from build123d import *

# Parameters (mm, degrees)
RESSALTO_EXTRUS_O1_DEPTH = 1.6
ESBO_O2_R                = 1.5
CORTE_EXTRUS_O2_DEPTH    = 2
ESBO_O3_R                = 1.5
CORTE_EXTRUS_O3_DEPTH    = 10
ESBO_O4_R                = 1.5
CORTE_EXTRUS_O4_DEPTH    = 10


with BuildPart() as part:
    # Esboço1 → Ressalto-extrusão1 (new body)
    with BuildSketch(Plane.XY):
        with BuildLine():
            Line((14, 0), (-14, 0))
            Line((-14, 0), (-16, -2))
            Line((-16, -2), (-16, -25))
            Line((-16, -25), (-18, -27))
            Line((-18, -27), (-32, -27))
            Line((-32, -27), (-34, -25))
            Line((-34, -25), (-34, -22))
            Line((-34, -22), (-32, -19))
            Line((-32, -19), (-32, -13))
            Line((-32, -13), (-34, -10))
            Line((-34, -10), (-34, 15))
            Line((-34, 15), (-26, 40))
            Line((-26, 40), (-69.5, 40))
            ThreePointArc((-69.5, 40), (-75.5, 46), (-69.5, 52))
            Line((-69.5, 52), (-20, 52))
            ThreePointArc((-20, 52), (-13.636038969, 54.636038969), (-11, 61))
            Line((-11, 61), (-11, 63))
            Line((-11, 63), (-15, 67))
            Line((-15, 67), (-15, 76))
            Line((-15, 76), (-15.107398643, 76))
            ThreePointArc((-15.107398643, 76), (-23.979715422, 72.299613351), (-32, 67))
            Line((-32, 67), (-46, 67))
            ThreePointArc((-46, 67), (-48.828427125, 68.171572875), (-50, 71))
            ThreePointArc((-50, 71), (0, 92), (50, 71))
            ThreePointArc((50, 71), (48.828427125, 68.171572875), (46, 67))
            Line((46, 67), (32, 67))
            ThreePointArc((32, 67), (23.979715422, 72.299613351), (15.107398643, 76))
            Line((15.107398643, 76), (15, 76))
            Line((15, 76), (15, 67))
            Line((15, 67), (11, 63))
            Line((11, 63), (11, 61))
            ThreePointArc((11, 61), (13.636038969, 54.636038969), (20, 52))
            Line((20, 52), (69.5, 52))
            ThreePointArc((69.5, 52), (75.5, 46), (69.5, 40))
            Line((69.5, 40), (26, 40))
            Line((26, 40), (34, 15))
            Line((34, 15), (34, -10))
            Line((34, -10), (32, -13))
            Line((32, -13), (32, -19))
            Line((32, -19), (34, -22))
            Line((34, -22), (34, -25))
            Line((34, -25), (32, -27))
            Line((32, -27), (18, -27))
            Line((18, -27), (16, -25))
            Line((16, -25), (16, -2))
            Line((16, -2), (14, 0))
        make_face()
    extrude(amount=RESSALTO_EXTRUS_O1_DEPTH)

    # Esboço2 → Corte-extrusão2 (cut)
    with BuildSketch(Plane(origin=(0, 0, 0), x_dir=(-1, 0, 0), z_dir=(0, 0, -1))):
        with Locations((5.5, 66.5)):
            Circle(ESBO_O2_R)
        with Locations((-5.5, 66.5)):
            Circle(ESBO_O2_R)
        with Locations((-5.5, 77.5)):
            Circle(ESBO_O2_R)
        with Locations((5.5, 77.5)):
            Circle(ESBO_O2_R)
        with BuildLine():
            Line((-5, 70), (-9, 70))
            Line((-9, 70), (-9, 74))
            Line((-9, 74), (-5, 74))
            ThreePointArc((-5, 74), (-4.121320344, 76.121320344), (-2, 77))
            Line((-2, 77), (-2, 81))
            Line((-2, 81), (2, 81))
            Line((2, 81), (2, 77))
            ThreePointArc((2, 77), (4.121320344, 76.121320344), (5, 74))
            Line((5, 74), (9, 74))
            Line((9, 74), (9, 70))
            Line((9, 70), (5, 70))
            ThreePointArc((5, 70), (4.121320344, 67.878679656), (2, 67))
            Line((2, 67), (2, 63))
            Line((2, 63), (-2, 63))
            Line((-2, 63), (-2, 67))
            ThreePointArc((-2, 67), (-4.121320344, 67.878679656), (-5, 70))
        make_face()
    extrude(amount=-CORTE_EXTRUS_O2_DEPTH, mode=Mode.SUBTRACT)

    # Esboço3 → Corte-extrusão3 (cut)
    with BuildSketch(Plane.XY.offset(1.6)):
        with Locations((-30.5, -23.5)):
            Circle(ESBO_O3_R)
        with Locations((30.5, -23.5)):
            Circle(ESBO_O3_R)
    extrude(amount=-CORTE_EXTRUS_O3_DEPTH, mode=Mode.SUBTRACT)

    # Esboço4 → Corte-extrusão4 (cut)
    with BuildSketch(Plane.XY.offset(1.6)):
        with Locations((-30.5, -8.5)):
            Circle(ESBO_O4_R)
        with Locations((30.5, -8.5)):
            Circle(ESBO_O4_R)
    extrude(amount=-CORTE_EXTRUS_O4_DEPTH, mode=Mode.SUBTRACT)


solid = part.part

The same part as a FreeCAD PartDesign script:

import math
import FreeCAD as App
import Part
import Sketcher
from FreeCAD import Vector

doc = App.newDocument("Part")
body = doc.addObject("PartDesign::Body", "Body")

# Sketch on XY plane
sketch1 = doc.addObject("Sketcher::SketchObject", "Sketch")
body.addObject(sketch1)
sketch1.AttachmentSupport = (doc.XY_Plane, [""])
sketch1.MapMode = "FlatFace"
sketch1.addGeometry([
    Part.LineSegment(Vector(-14, 0, 0), Vector(14, 0, 0)),  # 0
    Part.LineSegment(Vector(14, 0, 0), Vector(16, -2, 0)),  # 1
    Part.LineSegment(Vector(16, -2, 0), Vector(16, -25, 0)),  # 2
    Part.LineSegment(Vector(16, -25, 0), Vector(18, -27, 0)),  # 3
    Part.LineSegment(Vector(18, -27, 0), Vector(32, -27, 0)),  # 4
    Part.LineSegment(Vector(32, -27, 0), Vector(34, -25, 0)),  # 5
    Part.LineSegment(Vector(34, -25, 0), Vector(34, -22, 0)),  # 6
    Part.LineSegment(Vector(34, -22, 0), Vector(32, -19, 0)),  # 7
    Part.LineSegment(Vector(32, -19, 0), Vector(32, -13, 0)),  # 8
    Part.LineSegment(Vector(32, -13, 0), Vector(34, -10, 0)),  # 9
    Part.LineSegment(Vector(34, -10, 0), Vector(34, 15, 0)),  # 10
    Part.LineSegment(Vector(34, 15, 0), Vector(26, 40, 0)),  # 11
    Part.LineSegment(Vector(26, 40, 0), Vector(69.5, 40, 0)),  # 12
    Part.ArcOfCircle(Part.Circle(Vector(69.5, 46, 0), Vector(0, 0, 1), 6), math.radians(-90), math.radians(90)),  # 13
    Part.LineSegment(Vector(69.5, 52, 0), Vector(20, 52, 0)),  # 14
    Part.ArcOfCircle(Part.Circle(Vector(20, 61, 0), Vector(0, 0, 1), 9), math.radians(180), math.radians(270)),  # 15
    Part.LineSegment(Vector(11, 61, 0), Vector(11, 63, 0)),  # 16
    Part.LineSegment(Vector(11, 63, 0), Vector(15, 67, 0)),  # 17
    Part.LineSegment(Vector(15, 67, 0), Vector(15, 76, 0)),  # 18
    Part.LineSegment(Vector(15, 76, 0), Vector(15.11, 76, 0)),  # 19
    Part.ArcOfCircle(Part.Circle(Vector(0, 27.29, 0), Vector(0, 0, 1), 51), math.radians(51), math.radians(73)),  # 20
    Part.LineSegment(Vector(32, 67, 0), Vector(46, 67, 0)),  # 21
    Part.ArcOfCircle(Part.Circle(Vector(46, 71, 0), Vector(0, 0, 1), 4), math.radians(-90), math.radians(0)),  # 22
    Part.ArcOfCircle(Part.Circle(Vector(0, 21.98, 0), Vector(0, 0, 1), 70.02), math.radians(44), math.radians(136)),  # 23
    Part.ArcOfCircle(Part.Circle(Vector(-46, 71, 0), Vector(0, 0, 1), 4), math.radians(180), math.radians(270)),  # 24
    Part.LineSegment(Vector(-46, 67, 0), Vector(-32, 67, 0)),  # 25
    Part.ArcOfCircle(Part.Circle(Vector(0, 27.29, 0), Vector(0, 0, 1), 51), math.radians(107), math.radians(129)),  # 26
    Part.LineSegment(Vector(-15.11, 76, 0), Vector(-15, 76, 0)),  # 27
    Part.LineSegment(Vector(-15, 76, 0), Vector(-15, 67, 0)),  # 28
    Part.LineSegment(Vector(-15, 67, 0), Vector(-11, 63, 0)),  # 29
    Part.LineSegment(Vector(-11, 63, 0), Vector(-11, 61, 0)),  # 30
    Part.ArcOfCircle(Part.Circle(Vector(-20, 61, 0), Vector(0, 0, 1), 9), math.radians(-90), math.radians(0)),  # 31
    Part.LineSegment(Vector(-20, 52, 0), Vector(-69.5, 52, 0)),  # 32
    Part.ArcOfCircle(Part.Circle(Vector(-69.5, 46, 0), Vector(0, 0, 1), 6), math.radians(90), math.radians(270)),  # 33
    Part.LineSegment(Vector(-69.5, 40, 0), Vector(-26, 40, 0)),  # 34
    Part.LineSegment(Vector(-26, 40, 0), Vector(-34, 15, 0)),  # 35
    Part.LineSegment(Vector(-34, 15, 0), Vector(-34, -10, 0)),  # 36
    Part.LineSegment(Vector(-34, -10, 0), Vector(-32, -13, 0)),  # 37
    Part.LineSegment(Vector(-32, -13, 0), Vector(-32, -19, 0)),  # 38
    Part.LineSegment(Vector(-32, -19, 0), Vector(-34, -22, 0)),  # 39
    Part.LineSegment(Vector(-34, -22, 0), Vector(-34, -25, 0)),  # 40
    Part.LineSegment(Vector(-34, -25, 0), Vector(-32, -27, 0)),  # 41
    Part.LineSegment(Vector(-32, -27, 0), Vector(-18, -27, 0)),  # 42
    Part.LineSegment(Vector(-18, -27, 0), Vector(-16, -25, 0)),  # 43
    Part.LineSegment(Vector(-16, -25, 0), Vector(-16, -2, 0)),  # 44
    Part.LineSegment(Vector(-16, -2, 0), Vector(-14, 0, 0)),  # 45
], False)
sketch1.addConstraint([
    Sketcher.Constraint("Coincident", 0, 2, 1, 1),
    Sketcher.Constraint("Coincident", 1, 2, 2, 1),
    Sketcher.Constraint("Coincident", 2, 2, 3, 1),
    Sketcher.Constraint("Coincident", 3, 2, 4, 1),
    Sketcher.Constraint("Coincident", 4, 2, 5, 1),
    Sketcher.Constraint("Coincident", 5, 2, 6, 1),
    Sketcher.Constraint("Coincident", 6, 2, 7, 1),
    Sketcher.Constraint("Coincident", 7, 2, 8, 1),
    Sketcher.Constraint("Coincident", 8, 2, 9, 1),
    Sketcher.Constraint("Coincident", 9, 2, 10, 1),
    Sketcher.Constraint("Coincident", 10, 2, 11, 1),
    Sketcher.Constraint("Coincident", 11, 2, 12, 1),
    Sketcher.Constraint("Tangent", 12, 2, 13, 1),
    Sketcher.Constraint("Tangent", 13, 2, 14, 1),
    Sketcher.Constraint("Tangent", 14, 2, 15, 2),
    Sketcher.Constraint("Tangent", 15, 1, 16, 1),
    Sketcher.Constraint("Coincident", 16, 2, 17, 1),
    Sketcher.Constraint("Coincident", 17, 2, 18, 1),
    Sketcher.Constraint("Coincident", 18, 2, 19, 1),
    Sketcher.Constraint("Coincident", 19, 2, 20, 2),
    Sketcher.Constraint("Coincident", 20, 1, 21, 1),
    Sketcher.Constraint("Tangent", 21, 2, 22, 1),
    Sketcher.Constraint("Coincident", 22, 2, 23, 1),
    Sketcher.Constraint("Coincident", 23, 2, 24, 1),
    Sketcher.Constraint("Tangent", 24, 2, 25, 1),
    Sketcher.Constraint("Coincident", 25, 2, 26, 2),
    Sketcher.Constraint("Coincident", 26, 1, 27, 1),
    Sketcher.Constraint("Coincident", 27, 2, 28, 1),
    Sketcher.Constraint("Coincident", 28, 2, 29, 1),
    Sketcher.Constraint("Coincident", 29, 2, 30, 1),
    Sketcher.Constraint("Tangent", 30, 2, 31, 2),
    Sketcher.Constraint("Tangent", 31, 1, 32, 1),
    Sketcher.Constraint("Tangent", 32, 2, 33, 1),
    Sketcher.Constraint("Tangent", 33, 2, 34, 1),
    Sketcher.Constraint("Coincident", 34, 2, 35, 1),
    Sketcher.Constraint("Coincident", 35, 2, 36, 1),
    Sketcher.Constraint("Coincident", 36, 2, 37, 1),
    Sketcher.Constraint("Coincident", 37, 2, 38, 1),
    Sketcher.Constraint("Coincident", 38, 2, 39, 1),
    Sketcher.Constraint("Coincident", 39, 2, 40, 1),
    Sketcher.Constraint("Coincident", 40, 2, 41, 1),
    Sketcher.Constraint("Coincident", 41, 2, 42, 1),
    Sketcher.Constraint("Coincident", 42, 2, 43, 1),
    Sketcher.Constraint("Coincident", 43, 2, 44, 1),
    Sketcher.Constraint("Coincident", 44, 2, 45, 1),
    Sketcher.Constraint("Coincident", 45, 2, 0, 1),
    Sketcher.Constraint("Horizontal", 0),
    Sketcher.Constraint("Vertical", 2),
    Sketcher.Constraint("Horizontal", 4),
    Sketcher.Constraint("Vertical", 6),
    Sketcher.Constraint("Vertical", 8),
    Sketcher.Constraint("Vertical", 10),
    Sketcher.Constraint("Horizontal", 12),
    Sketcher.Constraint("Horizontal", 14),
    Sketcher.Constraint("Vertical", 16),
    Sketcher.Constraint("Vertical", 18),
    Sketcher.Constraint("Horizontal", 19),
    Sketcher.Constraint("Horizontal", 21),
    Sketcher.Constraint("Horizontal", 25),
    Sketcher.Constraint("Horizontal", 27),
    Sketcher.Constraint("Vertical", 28),
    Sketcher.Constraint("Vertical", 30),
    Sketcher.Constraint("Horizontal", 32),
    Sketcher.Constraint("Horizontal", 34),
    Sketcher.Constraint("Vertical", 36),
    Sketcher.Constraint("Vertical", 38),
    Sketcher.Constraint("Vertical", 40),
    Sketcher.Constraint("Horizontal", 42),
    Sketcher.Constraint("Vertical", 44),
    Sketcher.Constraint("Coincident", 26, 3, 20, 3),
    Sketcher.Constraint("Equal", 22, 24),
    Sketcher.Constraint("Equal", 20, 26),
    Sketcher.Constraint("Equal", 15, 31),
    Sketcher.Constraint("Equal", 13, 33),
    Sketcher.Constraint("Symmetric", 0, 2, 45, 2, -1, 1),
    Sketcher.Constraint("Symmetric", 22, 3, 24, 3, -2),
    Sketcher.Constraint("Symmetric", 15, 3, 31, 3, -2),
    Sketcher.Constraint("Symmetric", 19, 2, 26, 1, -2),
    Sketcher.Constraint("Symmetric", 17, 2, 28, 2, -2),
    Sketcher.Constraint("Symmetric", 10, 2, 35, 2, -2),
    Sketcher.Constraint("Symmetric", 8, 2, 37, 2, -2),
    Sketcher.Constraint("Symmetric", 6, 2, 39, 2, -2),
    Sketcher.Constraint("Symmetric", 4, 2, 41, 2, -2),
    Sketcher.Constraint("Symmetric", 2, 2, 43, 2, -2),
    Sketcher.Constraint("PointOnObject", 23, 3, -2),
    Sketcher.Constraint("Parallel", 1, 3),
    Sketcher.Constraint("Perpendicular", 3, 5),
    Sketcher.Constraint("Parallel", 5, 17),
    Sketcher.Constraint("Perpendicular", 17, 29),
    Sketcher.Constraint("Parallel", 7, 37),
    Sketcher.Constraint("Parallel", 9, 39),
    Sketcher.Constraint("Parallel", 29, 41),
    Sketcher.Constraint("Perpendicular", 41, 43),
    Sketcher.Constraint("Parallel", 43, 45),
    Sketcher.Constraint("Horizontal", 2, 2, 5, 2),
    Sketcher.Constraint("Horizontal", 17, 2, 20, 1),
    Sketcher.Constraint("Horizontal", 24, 3, 22, 2),
    Sketcher.Constraint("Horizontal", 16, 2, 29, 2),
    Sketcher.Constraint("Horizontal", 9, 2, 36, 2),
    Sketcher.Constraint("Vertical", 4, 2, 7, 2),
    Sketcher.Constraint("Vertical", 6, 2, 9, 2),
    Sketcher.Constraint("Vertical", 8, 2, 20, 1),
    Sketcher.Constraint("Equal", 4, 21),
    Sketcher.Constraint("Equal", 14, 32),
    Sketcher.Constraint("Equal", 12, 34),
    Sketcher.Constraint("Equal", 1, 3),
    Sketcher.Constraint("Radius", 13, 6.0),
    Sketcher.Constraint("Radius", 15, 9.0),
    Sketcher.Constraint("Radius", 22, 4.0),
    Sketcher.Constraint("DistanceX", 0, 1, 0, 2, 28.0),
    Sketcher.Constraint("DistanceX", 4, 1, 4, 2, 14.0),
    Sketcher.Constraint("DistanceY", 2, 2, 2, 1, 23.0),
    Sketcher.Constraint("DistanceY", 6, 1, 6, 2, 3.0),
    Sketcher.Constraint("DistanceY", 8, 1, 8, 2, 6.0),
    Sketcher.Constraint("DistanceY", 10, 1, 10, 2, 25.0),
    Sketcher.Constraint("DistanceY", 16, 1, 16, 2, 2.0),
    Sketcher.Constraint("DistanceY", 18, 1, 18, 2, 9.0),
    Sketcher.Constraint("DistanceX", 12, 1, 12, 2, 43.5),
    Sketcher.Constraint("DistanceX", 14, 2, 14, 1, 49.5),
    Sketcher.Constraint("DistanceY", -1, 1, 13, 3, 46.0),
    Sketcher.Constraint("DistanceX", -1, 1, 15, 3, 20.0),
    Sketcher.Constraint("DistanceX", -1, 1, 22, 3, 46.0),
    Sketcher.Constraint("DistanceY", -1, 1, 22, 3, 71.0),
    Sketcher.Constraint("DistanceY", 7, 2, -1, 1, 19.0),
    Sketcher.Constraint("Radius", 20, 50.99828),
    Sketcher.Constraint("Radius", 23, 70.02381),
])
pad1 = doc.addObject("PartDesign::Pad", "Pad")
body.addObject(pad1)
pad1.Profile = sketch1
pad1.Length = 1.6

# Sketch on XY plane
sketch2 = doc.addObject("Sketcher::SketchObject", "Sketch001")
body.addObject(sketch2)
sketch2.AttachmentSupport = (doc.XY_Plane, [""])
sketch2.MapMode = "FlatFace"
sketch2.addGeometry([
    Part.Circle(Vector(-5.5, 66.5, 0), Vector(0, 0, 1), 1.5),  # 0
    Part.Circle(Vector(5.5, 66.5, 0), Vector(0, 0, 1), 1.5),  # 1
    Part.Circle(Vector(5.5, 77.5, 0), Vector(0, 0, 1), 1.5),  # 2
    Part.Circle(Vector(-5.5, 77.5, 0), Vector(0, 0, 1), 1.5),  # 3
    Part.LineSegment(Vector(9, 70, 0), Vector(5, 70, 0)),  # 4
    Part.ArcOfCircle(Part.Circle(Vector(2, 70, 0), Vector(0, 0, 1), 3), math.radians(-90), math.radians(0)),  # 5
    Part.LineSegment(Vector(2, 67, 0), Vector(2, 63, 0)),  # 6
    Part.LineSegment(Vector(2, 63, 0), Vector(-2, 63, 0)),  # 7
    Part.LineSegment(Vector(-2, 63, 0), Vector(-2, 67, 0)),  # 8
    Part.ArcOfCircle(Part.Circle(Vector(-2, 70, 0), Vector(0, 0, 1), 3), math.radians(180), math.radians(270)),  # 9
    Part.LineSegment(Vector(-5, 70, 0), Vector(-9, 70, 0)),  # 10
    Part.LineSegment(Vector(-9, 70, 0), Vector(-9, 74, 0)),  # 11
    Part.LineSegment(Vector(-9, 74, 0), Vector(-5, 74, 0)),  # 12
    Part.ArcOfCircle(Part.Circle(Vector(-2, 74, 0), Vector(0, 0, 1), 3), math.radians(90), math.radians(180)),  # 13
    Part.LineSegment(Vector(-2, 77, 0), Vector(-2, 81, 0)),  # 14
    Part.LineSegment(Vector(-2, 81, 0), Vector(2, 81, 0)),  # 15
    Part.LineSegment(Vector(2, 81, 0), Vector(2, 77, 0)),  # 16
    Part.ArcOfCircle(Part.Circle(Vector(2, 74, 0), Vector(0, 0, 1), 3), math.radians(0), math.radians(90)),  # 17
    Part.LineSegment(Vector(5, 74, 0), Vector(9, 74, 0)),  # 18
    Part.LineSegment(Vector(9, 74, 0), Vector(9, 70, 0)),  # 19
], False)
sketch2.addConstraint([
    Sketcher.Constraint("Coincident", 4, 2, 5, 2),
    Sketcher.Constraint("Coincident", 5, 1, 6, 1),
    Sketcher.Constraint("Coincident", 6, 2, 7, 1),
    Sketcher.Constraint("Coincident", 7, 2, 8, 1),
    Sketcher.Constraint("Coincident", 8, 2, 9, 2),
    Sketcher.Constraint("Coincident", 9, 1, 10, 1),
    Sketcher.Constraint("Coincident", 10, 2, 11, 1),
    Sketcher.Constraint("Coincident", 11, 2, 12, 1),
    Sketcher.Constraint("Coincident", 12, 2, 13, 2),
    Sketcher.Constraint("Coincident", 13, 1, 14, 1),
    Sketcher.Constraint("Coincident", 14, 2, 15, 1),
    Sketcher.Constraint("Coincident", 15, 2, 16, 1),
    Sketcher.Constraint("Coincident", 16, 2, 17, 2),
    Sketcher.Constraint("Coincident", 17, 1, 18, 1),
    Sketcher.Constraint("Coincident", 18, 2, 19, 1),
    Sketcher.Constraint("Coincident", 19, 2, 4, 1),
    Sketcher.Constraint("Horizontal", 4),
    Sketcher.Constraint("Vertical", 6),
    Sketcher.Constraint("Horizontal", 7),
    Sketcher.Constraint("Vertical", 8),
    Sketcher.Constraint("Horizontal", 10),
    Sketcher.Constraint("Vertical", 11),
    Sketcher.Constraint("Horizontal", 12),
    Sketcher.Constraint("Vertical", 14),
    Sketcher.Constraint("Horizontal", 15),
    Sketcher.Constraint("Vertical", 16),
    Sketcher.Constraint("Horizontal", 18),
    Sketcher.Constraint("Vertical", 19),
    Sketcher.Constraint("Equal", 0, 1),
    Sketcher.Constraint("Equal", 1, 2),
    Sketcher.Constraint("Equal", 2, 3),
    Sketcher.Constraint("Equal", 5, 9),
    Sketcher.Constraint("Equal", 9, 13),
    Sketcher.Constraint("Equal", 13, 17),
    Sketcher.Constraint("Symmetric", 0, 3, 1, 3, -2),
    Sketcher.Constraint("Symmetric", 2, 3, 3, 3, -2),
    Sketcher.Constraint("Symmetric", 5, 3, 9, 3, -2),
    Sketcher.Constraint("Symmetric", 13, 3, 17, 3, -2),
    Sketcher.Constraint("Symmetric", 11, 2, 18, 2, -2),
    Sketcher.Constraint("Horizontal", 9, 3, 4, 2),
    Sketcher.Constraint("Horizontal", 4, 2, 9, 1),
    Sketcher.Constraint("Horizontal", 17, 3, 11, 2),
    Sketcher.Constraint("Vertical", 1, 3, 2, 3),
    Sketcher.Constraint("Vertical", 9, 3, 13, 3),
    Sketcher.Constraint("Vertical", 17, 3, 5, 1),
    Sketcher.Constraint("Vertical", 13, 3, 7, 2),
    Sketcher.Constraint("Vertical", 8, 2, 13, 1),
    Sketcher.Constraint("Vertical", 6, 2, 15, 2),
    Sketcher.Constraint("Equal", 4, 7),
    Sketcher.Constraint("Equal", 18, 6),
    Sketcher.Constraint("Equal", 8, 11),
    Sketcher.Constraint("Equal", 11, 14),
    Sketcher.Constraint("Diameter", 0, 3.0),
    Sketcher.Constraint("Radius", 5, 3.0),
    Sketcher.Constraint("DistanceX", 4, 2, 4, 1, 4.0),
    Sketcher.Constraint("DistanceY", -1, 1, 5, 3, 70.0),
    Sketcher.Constraint("DistanceX", 0, 3, 1, 3, 11.0),
    Sketcher.Constraint("DistanceY", 1, 3, 2, 3, 11.0),
    Sketcher.Constraint("DistanceY", -1, 1, 0, 3, 66.5),
])
pocket1 = doc.addObject("PartDesign::Pocket", "Pocket")
body.addObject(pocket1)
pocket1.Profile = sketch2
pocket1.Length = 2
pocket1.Reversed = True

# Sketch on XY plane
sketch3 = doc.addObject("Sketcher::SketchObject", "Sketch002")
body.addObject(sketch3)
sketch3.AttachmentSupport = (doc.XY_Plane, [""])
sketch3.MapMode = "FlatFace"
sketch3.AttachmentOffset = App.Placement(Vector(0, 0, 1.6), App.Rotation())
sketch3.addGeometry([
    Part.Circle(Vector(-30.5, -23.5, 0), Vector(0, 0, 1), 1.5),
    Part.Circle(Vector(30.5, -23.5, 0), Vector(0, 0, 1), 1.5),
], False)
sketch3.addConstraint([
    Sketcher.Constraint("Equal", 0, 1),
    Sketcher.Constraint("Symmetric", 0, 3, 1, 3, -2),
    Sketcher.Constraint("Diameter", 0, 3.0),
    Sketcher.Constraint("DistanceX", 0, 3, 1, 3, 61.0),
    Sketcher.Constraint("DistanceY", 0, 3, -1, 1, 23.5),
])
pocket2 = doc.addObject("PartDesign::Pocket", "Pocket001")
body.addObject(pocket2)
pocket2.Profile = sketch3
pocket2.Length = 10

# Sketch on XY plane
sketch4 = doc.addObject("Sketcher::SketchObject", "Sketch003")
body.addObject(sketch4)
sketch4.AttachmentSupport = (doc.XY_Plane, [""])
sketch4.MapMode = "FlatFace"
sketch4.AttachmentOffset = App.Placement(Vector(0, 0, 1.6), App.Rotation())
sketch4.addGeometry([
    Part.Circle(Vector(-30.5, -8.5, 0), Vector(0, 0, 1), 1.5),
    Part.Circle(Vector(30.5, -8.5, 0), Vector(0, 0, 1), 1.5),
], False)
sketch4.addConstraint([
    Sketcher.Constraint("Equal", 0, 1),
    Sketcher.Constraint("Symmetric", 0, 3, 1, 3, -2),
    Sketcher.Constraint("Diameter", 0, 3.0),
    Sketcher.Constraint("DistanceX", 0, 3, 1, 3, 61.0),
    Sketcher.Constraint("DistanceY", 0, 3, -1, 1, 8.5),
])
pocket3 = doc.addObject("PartDesign::Pocket", "Pocket002")
body.addObject(pocket3)
pocket3.Profile = sketch4
pocket3.Length = 10

doc.recompute()
